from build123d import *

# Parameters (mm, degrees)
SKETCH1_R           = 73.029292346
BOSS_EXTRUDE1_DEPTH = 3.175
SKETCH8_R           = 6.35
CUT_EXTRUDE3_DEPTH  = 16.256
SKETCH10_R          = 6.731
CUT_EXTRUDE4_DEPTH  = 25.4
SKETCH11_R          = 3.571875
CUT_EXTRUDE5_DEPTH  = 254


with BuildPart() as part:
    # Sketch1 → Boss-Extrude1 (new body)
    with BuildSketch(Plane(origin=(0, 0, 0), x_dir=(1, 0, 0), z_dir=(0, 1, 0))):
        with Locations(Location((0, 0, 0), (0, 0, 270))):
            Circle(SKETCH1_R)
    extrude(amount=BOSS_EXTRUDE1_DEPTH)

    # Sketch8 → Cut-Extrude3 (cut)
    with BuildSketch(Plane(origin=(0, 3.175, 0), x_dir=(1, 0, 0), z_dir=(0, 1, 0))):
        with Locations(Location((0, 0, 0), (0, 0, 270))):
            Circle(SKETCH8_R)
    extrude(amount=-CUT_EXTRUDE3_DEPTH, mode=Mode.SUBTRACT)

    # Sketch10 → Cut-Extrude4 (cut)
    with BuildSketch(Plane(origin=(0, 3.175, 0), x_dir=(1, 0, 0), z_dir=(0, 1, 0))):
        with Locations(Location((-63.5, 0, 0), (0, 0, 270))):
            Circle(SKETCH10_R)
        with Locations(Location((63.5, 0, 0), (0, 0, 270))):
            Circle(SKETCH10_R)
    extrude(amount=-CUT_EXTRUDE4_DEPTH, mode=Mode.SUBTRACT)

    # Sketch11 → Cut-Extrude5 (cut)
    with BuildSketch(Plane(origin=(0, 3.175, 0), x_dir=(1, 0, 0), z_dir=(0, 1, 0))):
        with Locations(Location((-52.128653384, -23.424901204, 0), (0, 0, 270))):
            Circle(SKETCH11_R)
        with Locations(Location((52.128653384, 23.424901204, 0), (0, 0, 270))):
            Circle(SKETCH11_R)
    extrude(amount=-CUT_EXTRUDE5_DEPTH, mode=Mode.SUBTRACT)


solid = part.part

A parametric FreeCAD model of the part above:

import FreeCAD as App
import Part
import Sketcher
Q = App.Units.Quantity

doc = App.newDocument("Part")
body = doc.addObject("PartDesign::Body", "Body")

sketch1 = doc.addObject("Sketcher::SketchObject", "Sketch")
body.addObject(sketch1)
sketch1.AttachmentSupport = (doc.XZ_Plane, [""])
sketch1.MapMode = "FlatFace"
sketch1.addGeometry(Part.Circle(App.Vector(0, 0, 0), App.Vector(0, 0, 1), 73.029292), False)
sketch1.addConstraint([
    Sketcher.Constraint("Coincident", 0, 3, -1, 1),
    Sketcher.Constraint("Diameter", 0, 146.058585),
])
pad1 = doc.addObject("PartDesign::Pad", "Pad")
body.addObject(pad1)
pad1.Profile = sketch1
pad1.Length = Q("0.125 in")
pad1.Reversed = True

sketch2 = doc.addObject("Sketcher::SketchObject", "Sketch001")
body.addObject(sketch2)
sketch2.AttachmentSupport = (doc.XZ_Plane, [""])
sketch2.MapMode = "FlatFace"
sketch2.AttachmentOffset = App.Placement(App.Vector(0, 0, -0.125 * 25.4), App.Rotation())
sketch2.addGeometry(Part.Circle(App.Vector(0, 0, 0), App.Vector(0, 0, 1), 6.35), False)
sketch2.addConstraint([
    Sketcher.Constraint("Coincident", 0, 3, -1, 1),
    Sketcher.Constraint("Diameter", 0, Q("0.5 in")),
])
pocket1 = doc.addObject("PartDesign::Pocket", "Pocket")
body.addObject(pocket1)
pocket1.Profile = sketch2
pocket1.Length = Q("0.64 in")
pocket1.Reversed = True

sketch3 = doc.addObject("Sketcher::SketchObject", "Sketch002")
body.addObject(sketch3)
sketch3.AttachmentSupport = (doc.XZ_Plane, [""])
sketch3.MapMode = "FlatFace"
sketch3.AttachmentOffset = App.Placement(App.Vector(0, 0, -0.125 * 25.4), App.Rotation())
sketch3.addGeometry([
    Part.Circle(App.Vector(-63.5, 0, 0), App.Vector(0, 0, 1), 6.731),
    Part.Circle(App.Vector(63.5, 0, 0), App.Vector(0, 0, 1), 6.731),
], False)
sketch3.addConstraint([
    Sketcher.Constraint("Equal", 0, 1),
    Sketcher.Constraint("Symmetric", 0, 3, 1, 3, -1, 1),
    Sketcher.Constraint("PointOnObject", 0, 3, -1),
    Sketcher.Constraint("Diameter", 0, Q("0.53 in")),
    Sketcher.Constraint("DistanceX", 0, 3, 1, 3, Q("5 in")),
])
pocket2 = doc.addObject("PartDesign::Pocket", "Pocket001")
body.addObject(pocket2)
pocket2.Profile = sketch3
pocket2.Length = Q("1 in")
pocket2.Reversed = True

sketch4 = doc.addObject("Sketcher::SketchObject", "Sketch003")
body.addObject(sketch4)
sketch4.AttachmentSupport = (doc.XZ_Plane, [""])
sketch4.MapMode = "FlatFace"
sketch4.AttachmentOffset = App.Placement(App.Vector(0, 0, -0.125 * 25.4), App.Rotation())
sketch4.addGeometry([
    Part.Circle(App.Vector(-52.128653, 23.424901, 0), App.Vector(0, 0, 1), 3.571875),
    Part.Circle(App.Vector(52.128653, -23.424901, 0), App.Vector(0, 0, 1), 3.571875),
], False)
sketch4.addConstraint([
    Sketcher.Constraint("Equal", 0, 1),
    Sketcher.Constraint("Symmetric", 0, 3, 1, 3, -1, 1),
    Sketcher.Constraint("Diameter", 0, Q("0.28125 in")),
    Sketcher.Constraint("DistanceY", -1, 1, 0, 3, 23.424901),
    Sketcher.Constraint("DistanceX", 0, 3, -1, 1, 52.128653),
])
pocket3 = doc.addObject("PartDesign::Pocket", "Pocket002")
body.addObject(pocket3)
pocket3.Profile = sketch4
pocket3.Length = Q("10 in")
pocket3.Reversed = True

doc.recompute()
